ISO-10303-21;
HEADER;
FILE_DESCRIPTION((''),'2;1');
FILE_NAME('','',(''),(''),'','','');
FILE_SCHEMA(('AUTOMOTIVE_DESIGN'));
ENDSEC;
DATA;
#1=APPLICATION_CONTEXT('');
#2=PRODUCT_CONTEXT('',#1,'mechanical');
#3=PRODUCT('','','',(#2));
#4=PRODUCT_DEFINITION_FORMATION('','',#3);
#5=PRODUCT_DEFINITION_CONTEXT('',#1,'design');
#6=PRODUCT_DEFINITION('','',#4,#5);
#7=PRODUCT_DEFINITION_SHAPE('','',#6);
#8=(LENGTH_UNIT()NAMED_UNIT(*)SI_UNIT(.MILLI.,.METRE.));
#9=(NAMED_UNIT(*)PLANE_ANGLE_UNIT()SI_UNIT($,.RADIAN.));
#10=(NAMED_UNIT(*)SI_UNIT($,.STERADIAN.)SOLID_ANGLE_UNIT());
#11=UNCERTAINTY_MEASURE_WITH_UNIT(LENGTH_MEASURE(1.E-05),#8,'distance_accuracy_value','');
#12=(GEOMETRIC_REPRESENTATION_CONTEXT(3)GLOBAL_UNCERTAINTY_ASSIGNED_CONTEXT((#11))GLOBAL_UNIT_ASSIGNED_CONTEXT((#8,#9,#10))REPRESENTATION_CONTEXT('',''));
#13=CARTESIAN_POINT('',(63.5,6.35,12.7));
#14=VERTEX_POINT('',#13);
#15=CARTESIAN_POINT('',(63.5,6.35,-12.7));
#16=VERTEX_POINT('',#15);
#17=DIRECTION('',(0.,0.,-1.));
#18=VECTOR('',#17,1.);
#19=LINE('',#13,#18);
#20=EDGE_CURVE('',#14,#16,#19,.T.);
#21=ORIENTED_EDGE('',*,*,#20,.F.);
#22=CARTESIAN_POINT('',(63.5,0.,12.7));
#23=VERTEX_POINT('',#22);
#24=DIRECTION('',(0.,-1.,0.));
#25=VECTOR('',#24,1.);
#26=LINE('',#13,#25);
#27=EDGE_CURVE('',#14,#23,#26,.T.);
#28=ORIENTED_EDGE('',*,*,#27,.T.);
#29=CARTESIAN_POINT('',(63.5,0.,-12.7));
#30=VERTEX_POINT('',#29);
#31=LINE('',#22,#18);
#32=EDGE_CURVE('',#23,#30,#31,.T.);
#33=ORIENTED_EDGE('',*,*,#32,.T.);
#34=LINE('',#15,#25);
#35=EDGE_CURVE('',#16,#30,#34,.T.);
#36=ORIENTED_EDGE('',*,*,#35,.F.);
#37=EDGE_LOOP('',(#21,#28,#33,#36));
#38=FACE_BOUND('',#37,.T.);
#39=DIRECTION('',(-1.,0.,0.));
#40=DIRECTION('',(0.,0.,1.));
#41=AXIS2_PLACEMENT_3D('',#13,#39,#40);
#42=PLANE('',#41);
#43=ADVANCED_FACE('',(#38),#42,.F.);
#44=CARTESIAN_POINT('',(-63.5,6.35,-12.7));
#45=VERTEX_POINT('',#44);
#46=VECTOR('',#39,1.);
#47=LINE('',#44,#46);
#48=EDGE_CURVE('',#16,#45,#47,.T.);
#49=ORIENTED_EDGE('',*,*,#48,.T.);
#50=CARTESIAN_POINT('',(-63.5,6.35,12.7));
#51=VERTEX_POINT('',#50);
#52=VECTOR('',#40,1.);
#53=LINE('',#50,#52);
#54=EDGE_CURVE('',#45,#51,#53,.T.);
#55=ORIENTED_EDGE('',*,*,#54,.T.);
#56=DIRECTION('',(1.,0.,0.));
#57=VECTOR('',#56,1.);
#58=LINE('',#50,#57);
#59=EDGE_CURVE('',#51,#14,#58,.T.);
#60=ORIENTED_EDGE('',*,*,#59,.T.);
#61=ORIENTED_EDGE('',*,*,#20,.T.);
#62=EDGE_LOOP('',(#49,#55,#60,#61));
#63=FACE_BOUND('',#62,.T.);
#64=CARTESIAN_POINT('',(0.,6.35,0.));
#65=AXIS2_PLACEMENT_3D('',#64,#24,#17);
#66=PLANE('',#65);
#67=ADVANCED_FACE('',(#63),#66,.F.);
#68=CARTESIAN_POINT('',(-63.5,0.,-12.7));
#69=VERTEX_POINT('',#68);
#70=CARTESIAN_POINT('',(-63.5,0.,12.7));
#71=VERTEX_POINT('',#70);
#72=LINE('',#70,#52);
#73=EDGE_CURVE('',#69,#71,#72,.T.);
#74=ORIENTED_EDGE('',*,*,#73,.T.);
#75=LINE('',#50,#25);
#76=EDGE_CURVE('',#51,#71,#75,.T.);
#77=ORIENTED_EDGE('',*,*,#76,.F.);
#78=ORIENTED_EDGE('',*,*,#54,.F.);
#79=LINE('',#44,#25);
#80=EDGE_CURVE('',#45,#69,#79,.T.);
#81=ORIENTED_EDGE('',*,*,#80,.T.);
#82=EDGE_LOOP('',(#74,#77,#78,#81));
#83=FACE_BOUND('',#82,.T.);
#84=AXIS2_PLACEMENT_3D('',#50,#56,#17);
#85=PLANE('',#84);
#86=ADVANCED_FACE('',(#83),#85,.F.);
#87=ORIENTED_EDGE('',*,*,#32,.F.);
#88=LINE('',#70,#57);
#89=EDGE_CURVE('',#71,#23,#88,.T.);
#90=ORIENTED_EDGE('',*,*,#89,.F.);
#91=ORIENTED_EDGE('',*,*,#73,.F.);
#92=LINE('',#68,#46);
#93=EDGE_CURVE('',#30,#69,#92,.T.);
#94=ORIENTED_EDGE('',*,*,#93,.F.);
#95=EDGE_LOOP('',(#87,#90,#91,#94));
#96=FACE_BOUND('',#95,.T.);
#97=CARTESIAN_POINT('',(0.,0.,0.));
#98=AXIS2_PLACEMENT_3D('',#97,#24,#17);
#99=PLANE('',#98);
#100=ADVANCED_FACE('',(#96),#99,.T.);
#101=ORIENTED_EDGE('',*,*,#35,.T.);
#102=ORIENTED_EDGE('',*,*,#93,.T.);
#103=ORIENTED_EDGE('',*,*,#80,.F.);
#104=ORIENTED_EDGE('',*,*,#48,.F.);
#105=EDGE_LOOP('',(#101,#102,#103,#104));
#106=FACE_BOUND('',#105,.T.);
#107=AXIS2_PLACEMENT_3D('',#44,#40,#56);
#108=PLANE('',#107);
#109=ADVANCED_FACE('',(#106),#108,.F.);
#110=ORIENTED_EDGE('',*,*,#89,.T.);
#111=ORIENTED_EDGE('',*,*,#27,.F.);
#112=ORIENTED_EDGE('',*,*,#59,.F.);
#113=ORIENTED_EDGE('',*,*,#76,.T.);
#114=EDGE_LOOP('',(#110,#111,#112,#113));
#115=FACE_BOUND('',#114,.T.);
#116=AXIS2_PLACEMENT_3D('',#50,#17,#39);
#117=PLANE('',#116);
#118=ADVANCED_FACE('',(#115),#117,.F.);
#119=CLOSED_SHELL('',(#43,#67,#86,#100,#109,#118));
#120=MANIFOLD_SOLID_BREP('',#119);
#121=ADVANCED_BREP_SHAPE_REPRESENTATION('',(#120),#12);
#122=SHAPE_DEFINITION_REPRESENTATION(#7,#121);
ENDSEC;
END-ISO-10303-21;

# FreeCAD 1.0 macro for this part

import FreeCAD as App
import Part
import Sketcher

V = App.Vector
Q = App.Units.Quantity

doc = App.newDocument("Part")
body = doc.addObject("PartDesign::Body", "Body")

# Sketch on XZ plane
sketch1 = doc.addObject("Sketcher::SketchObject", "Sketch")
body.addObject(sketch1)
sketch1.AttachmentSupport = (doc.XZ_Plane, [""])
sketch1.MapMode = "FlatFace"
sketch1.addGeometry(Part.LineSegment(V(-64, -13, 0), V(-64, 13, 0)), False)
sketch1.addGeometry(Part.LineSegment(V(-64, 13, 0), V(64, 13, 0)), False)
sketch1.addGeometry(Part.LineSegment(V(64, 13, 0), V(64, -13, 0)), False)
sketch1.addGeometry(Part.LineSegment(V(64, -13, 0), V(-64, -13, 0)), False)
sketch1.addConstraint(Sketcher.Constraint("Coincident", 0, 2, 1, 1))
sketch1.addConstraint(Sketcher.Constraint("Coincident", 1, 2, 2, 1))
sketch1.addConstraint(Sketcher.Constraint("Coincident", 2, 2, 3, 1))
sketch1.addConstraint(Sketcher.Constraint("Coincident", 3, 2, 0, 1))
sketch1.addConstraint(Sketcher.Constraint("Vertical", 0))
sketch1.addConstraint(Sketcher.Constraint("Horizontal", 1))
sketch1.addConstraint(Sketcher.Constraint("Vertical", 2))
sketch1.addConstraint(Sketcher.Constraint("Horizontal", 3))
sketch1.addConstraint(Sketcher.Constraint("Symmetric", 0, 2, 2, 2, -1, 1))
sketch1.addConstraint(Sketcher.Constraint("DistanceX", 1, 1, 1, 2, Q("5 in")))
sketch1.addConstraint(Sketcher.Constraint("DistanceY", 0, 1, 0, 2, Q("1 in")))
pad1 = doc.addObject("PartDesign::Pad", "Pad")
body.addObject(pad1)
pad1.Profile = sketch1
pad1.Length = Q("0.25 in")
pad1.Reversed = True

doc.recompute()
